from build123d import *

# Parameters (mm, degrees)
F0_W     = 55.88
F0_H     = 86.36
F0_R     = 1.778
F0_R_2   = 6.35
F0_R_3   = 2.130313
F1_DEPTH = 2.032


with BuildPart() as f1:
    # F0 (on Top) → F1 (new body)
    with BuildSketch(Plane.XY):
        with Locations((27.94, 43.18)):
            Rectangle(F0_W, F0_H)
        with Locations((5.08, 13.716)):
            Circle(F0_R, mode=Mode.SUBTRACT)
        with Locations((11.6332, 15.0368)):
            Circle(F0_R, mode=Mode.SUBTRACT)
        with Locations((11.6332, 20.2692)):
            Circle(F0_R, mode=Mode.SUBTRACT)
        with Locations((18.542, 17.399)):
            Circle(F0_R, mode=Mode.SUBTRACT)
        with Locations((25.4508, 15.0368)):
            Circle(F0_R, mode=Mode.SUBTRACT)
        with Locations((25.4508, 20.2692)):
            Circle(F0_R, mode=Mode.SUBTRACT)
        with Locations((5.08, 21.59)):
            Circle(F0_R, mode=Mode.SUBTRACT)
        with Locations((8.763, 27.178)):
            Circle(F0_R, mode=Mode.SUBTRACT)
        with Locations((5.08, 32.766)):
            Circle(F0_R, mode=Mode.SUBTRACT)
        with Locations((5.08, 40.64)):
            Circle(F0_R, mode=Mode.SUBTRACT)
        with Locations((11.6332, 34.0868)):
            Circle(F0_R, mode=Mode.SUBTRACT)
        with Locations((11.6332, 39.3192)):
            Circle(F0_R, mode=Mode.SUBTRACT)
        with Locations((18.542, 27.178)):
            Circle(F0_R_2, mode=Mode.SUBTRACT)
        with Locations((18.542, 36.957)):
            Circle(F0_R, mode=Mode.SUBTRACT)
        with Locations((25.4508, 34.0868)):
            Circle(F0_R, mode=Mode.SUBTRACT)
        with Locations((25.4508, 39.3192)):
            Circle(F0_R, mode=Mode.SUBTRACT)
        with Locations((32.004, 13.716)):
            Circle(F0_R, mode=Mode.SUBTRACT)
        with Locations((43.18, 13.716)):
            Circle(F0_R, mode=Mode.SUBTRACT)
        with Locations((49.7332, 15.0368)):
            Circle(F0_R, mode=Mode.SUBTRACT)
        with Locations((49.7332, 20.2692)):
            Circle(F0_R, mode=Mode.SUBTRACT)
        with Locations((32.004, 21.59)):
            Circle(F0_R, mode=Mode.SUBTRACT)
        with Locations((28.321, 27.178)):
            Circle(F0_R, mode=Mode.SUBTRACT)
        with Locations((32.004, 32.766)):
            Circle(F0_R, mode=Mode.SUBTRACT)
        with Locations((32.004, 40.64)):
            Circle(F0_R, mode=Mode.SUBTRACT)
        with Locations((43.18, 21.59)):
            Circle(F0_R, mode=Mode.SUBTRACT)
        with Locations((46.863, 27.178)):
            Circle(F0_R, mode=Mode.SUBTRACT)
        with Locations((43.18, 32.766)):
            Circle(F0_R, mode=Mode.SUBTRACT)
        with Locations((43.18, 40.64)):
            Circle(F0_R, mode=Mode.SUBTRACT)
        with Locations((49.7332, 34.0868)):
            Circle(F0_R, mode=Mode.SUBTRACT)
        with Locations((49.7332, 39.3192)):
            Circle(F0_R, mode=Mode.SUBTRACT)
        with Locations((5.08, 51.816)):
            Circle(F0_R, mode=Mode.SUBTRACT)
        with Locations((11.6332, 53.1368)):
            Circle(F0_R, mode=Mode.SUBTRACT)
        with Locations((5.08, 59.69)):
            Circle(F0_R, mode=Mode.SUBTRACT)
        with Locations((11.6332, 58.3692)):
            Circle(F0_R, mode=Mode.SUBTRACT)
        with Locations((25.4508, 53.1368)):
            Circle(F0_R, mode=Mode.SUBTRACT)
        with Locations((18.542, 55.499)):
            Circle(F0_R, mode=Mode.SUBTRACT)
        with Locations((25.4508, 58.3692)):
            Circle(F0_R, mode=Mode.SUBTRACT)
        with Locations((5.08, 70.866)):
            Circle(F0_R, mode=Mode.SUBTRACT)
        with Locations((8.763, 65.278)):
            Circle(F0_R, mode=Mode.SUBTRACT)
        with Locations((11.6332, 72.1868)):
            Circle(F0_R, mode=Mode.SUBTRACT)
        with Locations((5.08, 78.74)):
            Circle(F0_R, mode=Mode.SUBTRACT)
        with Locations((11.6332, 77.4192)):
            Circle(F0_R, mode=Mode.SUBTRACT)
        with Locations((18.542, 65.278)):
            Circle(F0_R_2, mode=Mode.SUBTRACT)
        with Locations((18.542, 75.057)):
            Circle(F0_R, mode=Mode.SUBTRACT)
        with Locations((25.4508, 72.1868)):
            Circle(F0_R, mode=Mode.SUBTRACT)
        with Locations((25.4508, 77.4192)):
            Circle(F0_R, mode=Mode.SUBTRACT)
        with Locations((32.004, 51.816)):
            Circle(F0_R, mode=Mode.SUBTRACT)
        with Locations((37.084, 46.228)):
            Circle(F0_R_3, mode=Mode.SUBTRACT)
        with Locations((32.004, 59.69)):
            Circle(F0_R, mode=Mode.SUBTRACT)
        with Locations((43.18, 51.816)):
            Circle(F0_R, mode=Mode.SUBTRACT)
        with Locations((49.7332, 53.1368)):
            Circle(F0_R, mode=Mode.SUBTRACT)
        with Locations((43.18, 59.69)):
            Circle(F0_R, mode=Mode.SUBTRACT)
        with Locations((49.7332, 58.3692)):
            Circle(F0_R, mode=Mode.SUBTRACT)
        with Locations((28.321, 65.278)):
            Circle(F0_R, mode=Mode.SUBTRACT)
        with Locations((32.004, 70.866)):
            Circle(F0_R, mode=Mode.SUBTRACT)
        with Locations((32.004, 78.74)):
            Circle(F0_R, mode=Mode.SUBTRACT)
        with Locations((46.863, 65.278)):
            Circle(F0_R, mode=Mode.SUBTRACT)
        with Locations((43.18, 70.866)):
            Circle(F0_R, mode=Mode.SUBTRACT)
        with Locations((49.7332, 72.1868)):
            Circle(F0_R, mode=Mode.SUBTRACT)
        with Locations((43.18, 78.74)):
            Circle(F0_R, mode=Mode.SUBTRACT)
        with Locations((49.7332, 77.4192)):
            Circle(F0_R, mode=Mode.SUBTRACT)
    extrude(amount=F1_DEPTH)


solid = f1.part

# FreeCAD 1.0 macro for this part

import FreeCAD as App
import Part
import Sketcher
Q = App.Units.Quantity

doc = App.newDocument("Part")
body = doc.addObject("PartDesign::Body", "Body")

# Sketch on XY plane
sketch1 = doc.addObject("Sketcher::SketchObject", "Sketch")
body.addObject(sketch1)
sketch1.AttachmentSupport = (doc.XY_Plane, [""])
sketch1.MapMode = "FlatFace"
sketch1.addGeometry([
    Part.LineSegment(App.Vector(0, 86.4, 0), App.Vector(0, 0, 0)),  # 0
    Part.LineSegment(App.Vector(0, 0, 0), App.Vector(55.9, 0, 0)),  # 1
    Part.LineSegment(App.Vector(55.9, 0, 0), App.Vector(55.9, 86.4, 0)),  # 2
    Part.LineSegment(App.Vector(55.9, 86.4, 0), App.Vector(0, 86.4, 0)),  # 3
    Part.Circle(App.Vector(5.1, 13.7, 0), App.Vector(0, 0, 1), 1.8),  # 4
    Part.Circle(App.Vector(11.6, 15, 0), App.Vector(0, 0, 1), 1.8),  # 5
    Part.Circle(App.Vector(11.6, 20.3, 0), App.Vector(0, 0, 1), 1.8),  # 6
    Part.Circle(App.Vector(5.1, 21.6, 0), App.Vector(0, 0, 1), 1.8),  # 7
    Part.Circle(App.Vector(8.8, 27.2, 0), App.Vector(0, 0, 1), 1.8),  # 8
    Part.Circle(App.Vector(18.5, 17.4, 0), App.Vector(0, 0, 1), 1.8),  # 9
    Part.Circle(App.Vector(25.5, 15, 0), App.Vector(0, 0, 1), 1.8),  # 10
    Part.Circle(App.Vector(25.5, 20.3, 0), App.Vector(0, 0, 1), 1.8),  # 11
    Part.Circle(App.Vector(18.5, 27.2, 0), App.Vector(0, 0, 1), 6.3),  # 12
    Part.Circle(App.Vector(5.1, 32.8, 0), App.Vector(0, 0, 1), 1.8),  # 13
    Part.Circle(App.Vector(11.6, 34.1, 0), App.Vector(0, 0, 1), 1.8),  # 14
    Part.Circle(App.Vector(5.1, 40.6, 0), App.Vector(0, 0, 1), 1.8),  # 15
    Part.Circle(App.Vector(11.6, 39.3, 0), App.Vector(0, 0, 1), 1.8),  # 16
    Part.Circle(App.Vector(18.5, 37, 0), App.Vector(0, 0, 1), 1.8),  # 17
    Part.Circle(App.Vector(25.5, 34.1, 0), App.Vector(0, 0, 1), 1.8),  # 18
    Part.Circle(App.Vector(25.5, 39.3, 0), App.Vector(0, 0, 1), 1.8),  # 19
    Part.Circle(App.Vector(32, 13.7, 0), App.Vector(0, 0, 1), 1.8),  # 20
    Part.Circle(App.Vector(32, 21.6, 0), App.Vector(0, 0, 1), 1.8),  # 21
    Part.Circle(App.Vector(28.3, 27.2, 0), App.Vector(0, 0, 1), 1.8),  # 22
    Part.Circle(App.Vector(43.2, 13.7, 0), App.Vector(0, 0, 1), 1.8),  # 23
    Part.Circle(App.Vector(49.7, 15, 0), App.Vector(0, 0, 1), 1.8),  # 24
    Part.Circle(App.Vector(49.7, 20.3, 0), App.Vector(0, 0, 1), 1.8),  # 25
    Part.Circle(App.Vector(43.2, 21.6, 0), App.Vector(0, 0, 1), 1.8),  # 26
    Part.Circle(App.Vector(46.9, 27.2, 0), App.Vector(0, 0, 1), 1.8),  # 27
    Part.Circle(App.Vector(32, 32.8, 0), App.Vector(0, 0, 1), 1.8),  # 28
    Part.Circle(App.Vector(32, 40.6, 0), App.Vector(0, 0, 1), 1.8),  # 29
    Part.Circle(App.Vector(43.2, 32.8, 0), App.Vector(0, 0, 1), 1.8),  # 30
    Part.Circle(App.Vector(49.7, 34.1, 0), App.Vector(0, 0, 1), 1.8),  # 31
    Part.Circle(App.Vector(43.2, 40.6, 0), App.Vector(0, 0, 1), 1.8),  # 32
    Part.Circle(App.Vector(49.7, 39.3, 0), App.Vector(0, 0, 1), 1.8),  # 33
    Part.Circle(App.Vector(5.1, 51.8, 0), App.Vector(0, 0, 1), 1.8),  # 34
    Part.Circle(App.Vector(11.6, 53.1, 0), App.Vector(0, 0, 1), 1.8),  # 35
    Part.Circle(App.Vector(5.1, 59.7, 0), App.Vector(0, 0, 1), 1.8),  # 36
    Part.Circle(App.Vector(11.6, 58.4, 0), App.Vector(0, 0, 1), 1.8),  # 37
    Part.Circle(App.Vector(25.5, 53.1, 0), App.Vector(0, 0, 1), 1.8),  # 38
    Part.Circle(App.Vector(18.5, 55.5, 0), App.Vector(0, 0, 1), 1.8),  # 39
    Part.Circle(App.Vector(25.5, 58.4, 0), App.Vector(0, 0, 1), 1.8),  # 40
    Part.Circle(App.Vector(8.8, 65.3, 0), App.Vector(0, 0, 1), 1.8),  # 41
    Part.Circle(App.Vector(5.1, 70.9, 0), App.Vector(0, 0, 1), 1.8),  # 42
    Part.Circle(App.Vector(5.1, 78.7, 0), App.Vector(0, 0, 1), 1.8),  # 43
    Part.Circle(App.Vector(11.6, 72.2, 0), App.Vector(0, 0, 1), 1.8),  # 44
    Part.Circle(App.Vector(11.6, 77.4, 0), App.Vector(0, 0, 1), 1.8),  # 45
    Part.Circle(App.Vector(18.5, 65.3, 0), App.Vector(0, 0, 1), 6.3),  # 46
    Part.Circle(App.Vector(18.5, 75.1, 0), App.Vector(0, 0, 1), 1.8),  # 47
    Part.Circle(App.Vector(25.5, 72.2, 0), App.Vector(0, 0, 1), 1.8),  # 48
    Part.Circle(App.Vector(25.5, 77.4, 0), App.Vector(0, 0, 1), 1.8),  # 49
    Part.Circle(App.Vector(32, 51.8, 0), App.Vector(0, 0, 1), 1.8),  # 50
    Part.Circle(App.Vector(37.1, 46.2, 0), App.Vector(0, 0, 1), 2.1),  # 51
    Part.Circle(App.Vector(32, 59.7, 0), App.Vector(0, 0, 1), 1.8),  # 52
    Part.Circle(App.Vector(43.2, 51.8, 0), App.Vector(0, 0, 1), 1.8),  # 53
    Part.Circle(App.Vector(49.7, 53.1, 0), App.Vector(0, 0, 1), 1.8),  # 54
    Part.Circle(App.Vector(43.2, 59.7, 0), App.Vector(0, 0, 1), 1.8),  # 55
    Part.Circle(App.Vector(49.7, 58.4, 0), App.Vector(0, 0, 1), 1.8),  # 56
    Part.Circle(App.Vector(28.3, 65.3, 0), App.Vector(0, 0, 1), 1.8),  # 57
    Part.Circle(App.Vector(32, 70.9, 0), App.Vector(0, 0, 1), 1.8),  # 58
    Part.Circle(App.Vector(32, 78.7, 0), App.Vector(0, 0, 1), 1.8),  # 59
    Part.Circle(App.Vector(43.2, 70.9, 0), App.Vector(0, 0, 1), 1.8),  # 60
    Part.Circle(App.Vector(46.9, 65.3, 0), App.Vector(0, 0, 1), 1.8),  # 61
    Part.Circle(App.Vector(43.2, 78.7, 0), App.Vector(0, 0, 1), 1.8),  # 62
    Part.Circle(App.Vector(49.7, 72.2, 0), App.Vector(0, 0, 1), 1.8),  # 63
    Part.Circle(App.Vector(49.7, 77.4, 0), App.Vector(0, 0, 1), 1.8),  # 64
], False)
sketch1.addConstraint([
    Sketcher.Constraint("Coincident", 0, 2, 1, 1),
    Sketcher.Constraint("Coincident", 1, 2, 2, 1),
    Sketcher.Constraint("Coincident", 2, 2, 3, 1),
    Sketcher.Constraint("Coincident", 3, 2, 0, 1),
    Sketcher.Constraint("Vertical", 0),
    Sketcher.Constraint("Horizontal", 1),
    Sketcher.Constraint("Vertical", 2),
    Sketcher.Constraint("Horizontal", 3),
    Sketcher.Constraint("Coincident", 0, 2, -1, 1),
    Sketcher.Constraint("Equal", 4, 5),
    Sketcher.Constraint("Equal", 5, 6),
    Sketcher.Constraint("Equal", 6, 7),
    Sketcher.Constraint("Equal", 7, 8),
    Sketcher.Constraint("Equal", 8, 9),
    Sketcher.Constraint("Equal", 9, 10),
    Sketcher.Constraint("Equal", 10, 11),
    Sketcher.Constraint("Equal", 11, 13),
    Sketcher.Constraint("Equal", 13, 14),
    Sketcher.Constraint("Equal", 14, 15),
    Sketcher.Constraint("Equal", 15, 16),
    Sketcher.Constraint("Equal", 16, 17),
    Sketcher.Constraint("Equal", 17, 18),
    Sketcher.Constraint("Equal", 18, 19),
    Sketcher.Constraint("Equal", 19, 20),
    Sketcher.Constraint("Equal", 20, 21),
    Sketcher.Constraint("Equal", 21, 22),
    Sketcher.Constraint("Equal", 22, 23),
    Sketcher.Constraint("Equal", 23, 24),
    Sketcher.Constraint("Equal", 24, 25),
    Sketcher.Constraint("Equal", 25, 26),
    Sketcher.Constraint("Equal", 26, 27),
    Sketcher.Constraint("Equal", 27, 28),
    Sketcher.Constraint("Equal", 28, 29),
    Sketcher.Constraint("Equal", 29, 30),
    Sketcher.Constraint("Equal", 30, 31),
    Sketcher.Constraint("Equal", 31, 32),
    Sketcher.Constraint("Equal", 32, 33),
    Sketcher.Constraint("Equal", 33, 34),
    Sketcher.Constraint("Equal", 34, 35),
    Sketcher.Constraint("Equal", 35, 36),
    Sketcher.Constraint("Equal", 36, 37),
    Sketcher.Constraint("Equal", 37, 38),
    Sketcher.Constraint("Equal", 38, 39),
    Sketcher.Constraint("Equal", 39, 40),
    Sketcher.Constraint("Equal", 40, 41),
    Sketcher.Constraint("Equal", 41, 42),
    Sketcher.Constraint("Equal", 42, 43),
    Sketcher.Constraint("Equal", 43, 44),
    Sketcher.Constraint("Equal", 44, 45),
    Sketcher.Constraint("Equal", 12, 46),
    Sketcher.Constraint("Equal", 45, 47),
    Sketcher.Constraint("Equal", 47, 48),
    Sketcher.Constraint("Equal", 48, 49),
    Sketcher.Constraint("Equal", 49, 50),
    Sketcher.Constraint("Equal", 50, 52),
    Sketcher.Constraint("Equal", 52, 53),
    Sketcher.Constraint("Equal", 53, 54),
    Sketcher.Constraint("Equal", 54, 55),
    Sketcher.Constraint("Equal", 55, 56),
    Sketcher.Constraint("Equal", 56, 57),
    Sketcher.Constraint("Equal", 57, 58),
    Sketcher.Constraint("Equal", 58, 59),
    Sketcher.Constraint("Equal", 59, 60),
    Sketcher.Constraint("Equal", 60, 61),
    Sketcher.Constraint("Equal", 61, 62),
    Sketcher.Constraint("Equal", 62, 63),
    Sketcher.Constraint("Equal", 63, 64),
    Sketcher.Constraint("Horizontal", 5, 3, 10, 3),
    Sketcher.Constraint("Horizontal", 6, 3, 11, 3),
    Sketcher.Constraint("Horizontal", 8, 3, 12, 3),
    Sketcher.Constraint("Horizontal", 14, 3, 18, 3),
    Sketcher.Constraint("Horizontal", 16, 3, 19, 3),
    Sketcher.Constraint("Horizontal", 4, 3, 20, 3),
    Sketcher.Constraint("Horizontal", 7, 3, 21, 3),
    Sketcher.Constraint("Horizontal", 12, 3, 22, 3),
    Sketcher.Constraint("Horizontal", 20, 3, 23, 3),
    Sketcher.Constraint("Horizontal", 10, 3, 24, 3),
    Sketcher.Constraint("Horizontal", 11, 3, 25, 3),
    Sketcher.Constraint("Horizontal", 21, 3, 26, 3),
    Sketcher.Constraint("Horizontal", 22, 3, 27, 3),
    Sketcher.Constraint("Horizontal", 13, 3, 28, 3),
    Sketcher.Constraint("Horizontal", 15, 3, 29, 3),
    Sketcher.Constraint("Horizontal", 28, 3, 30, 3),
    Sketcher.Constraint("Horizontal", 18, 3, 31, 3),
    Sketcher.Constraint("Horizontal", 29, 3, 32, 3),
    Sketcher.Constraint("Horizontal", 19, 3, 33, 3),
    Sketcher.Constraint("Horizontal", 35, 3, 38, 3),
    Sketcher.Constraint("Horizontal", 37, 3, 40, 3),
    Sketcher.Constraint("Horizontal", 41, 3, 46, 3),
    Sketcher.Constraint("Horizontal", 44, 3, 48, 3),
    Sketcher.Constraint("Horizontal", 45, 3, 49, 3),
    Sketcher.Constraint("Horizontal", 34, 3, 50, 3),
    Sketcher.Constraint("Horizontal", 36, 3, 52, 3),
    Sketcher.Constraint("Horizontal", 50, 3, 53, 3),
    Sketcher.Constraint("Horizontal", 38, 3, 54, 3),
    Sketcher.Constraint("Horizontal", 52, 3, 55, 3),
    Sketcher.Constraint("Horizontal", 40, 3, 56, 3),
    Sketcher.Constraint("Horizontal", 46, 3, 57, 3),
    Sketcher.Constraint("Horizontal", 42, 3, 58, 3),
    Sketcher.Constraint("Horizontal", 43, 3, 59, 3),
    Sketcher.Constraint("Horizontal", 58, 3, 60, 3),
    Sketcher.Constraint("Horizontal", 57, 3, 61, 3),
    Sketcher.Constraint("Horizontal", 59, 3, 62, 3),
    Sketcher.Constraint("Horizontal", 48, 3, 63, 3),
    Sketcher.Constraint("Horizontal", 49, 3, 64, 3),
    Sketcher.Constraint("Vertical", 5, 3, 6, 3),
    Sketcher.Constraint("Vertical", 4, 3, 7, 3),
    Sketcher.Constraint("Vertical", 10, 3, 11, 3),
    Sketcher.Constraint("Vertical", 9, 3, 12, 3),
    Sketcher.Constraint("Vertical", 7, 3, 13, 3),
    Sketcher.Constraint("Vertical", 6, 3, 14, 3),
    Sketcher.Constraint("Vertical", 13, 3, 15, 3),
    Sketcher.Constraint("Vertical", 14, 3, 16, 3),
    Sketcher.Constraint("Vertical", 12, 3, 17, 3),
    Sketcher.Constraint("Vertical", 11, 3, 18, 3),
    Sketcher.Constraint("Vertical", 18, 3, 19, 3),
    Sketcher.Constraint("Vertical", 20, 3, 21, 3),
    Sketcher.Constraint("Vertical", 24, 3, 25, 3),
    Sketcher.Constraint("Vertical", 23, 3, 26, 3),
    Sketcher.Constraint("Vertical", 21, 3, 28, 3),
    Sketcher.Constraint("Vertical", 28, 3, 29, 3),
    Sketcher.Constraint("Vertical", 26, 3, 30, 3),
    Sketcher.Constraint("Vertical", 25, 3, 31, 3),
    Sketcher.Constraint("Vertical", 30, 3, 32, 3),
    Sketcher.Constraint("Vertical", 31, 3, 33, 3),
    Sketcher.Constraint("Vertical", 15, 3, 34, 3),
    Sketcher.Constraint("Vertical", 16, 3, 35, 3),
    Sketcher.Constraint("Vertical", 34, 3, 36, 3),
    Sketcher.Constraint("Vertical", 35, 3, 37, 3),
    Sketcher.Constraint("Vertical", 19, 3, 38, 3),
    Sketcher.Constraint("Vertical", 17, 3, 39, 3),
    Sketcher.Constraint("Vertical", 38, 3, 40, 3),
    Sketcher.Constraint("Vertical", 8, 3, 41, 3),
    Sketcher.Constraint("Vertical", 36, 3, 42, 3),
    Sketcher.Constraint("Vertical", 42, 3, 43, 3),
    Sketcher.Constraint("Vertical", 37, 3, 44, 3),
    Sketcher.Constraint("Vertical", 44, 3, 45, 3),
    Sketcher.Constraint("Vertical", 39, 3, 46, 3),
    Sketcher.Constraint("Vertical", 46, 3, 47, 3),
    Sketcher.Constraint("Vertical", 40, 3, 48, 3),
    Sketcher.Constraint("Vertical", 48, 3, 49, 3),
    Sketcher.Constraint("Vertical", 29, 3, 50, 3),
    Sketcher.Constraint("Vertical", 50, 3, 52, 3),
    Sketcher.Constraint("Vertical", 32, 3, 53, 3),
    Sketcher.Constraint("Vertical", 33, 3, 54, 3),
    Sketcher.Constraint("Vertical", 53, 3, 55, 3),
    Sketcher.Constraint("Vertical", 54, 3, 56, 3),
    Sketcher.Constraint("Vertical", 22, 3, 57, 3),
    Sketcher.Constraint("Vertical", 52, 3, 58, 3),
    Sketcher.Constraint("Vertical", 58, 3, 59, 3),
    Sketcher.Constraint("Vertical", 55, 3, 60, 3),
    Sketcher.Constraint("Vertical", 27, 3, 61, 3),
    Sketcher.Constraint("Vertical", 60, 3, 62, 3),
    Sketcher.Constraint("Vertical", 56, 3, 63, 3),
    Sketcher.Constraint("Vertical", 63, 3, 64, 3),
    Sketcher.Constraint("Diameter", 12, Q("0.5 in")),
    Sketcher.Constraint("Diameter", 4, Q("0.14 in")),
    Sketcher.Constraint("DistanceX", 1, 1, 1, 2, Q("2.2 in")),
    Sketcher.Constraint("DistanceY", 0, 2, 0, 1, Q("3.4 in")),
    Sketcher.Constraint("DistanceX", -1, 1, 4, 3, Q("0.2 in")),
    Sketcher.Constraint("DistanceY", -1, 1, 15, 3, Q("1.6 in")),
    Sketcher.Constraint("DistanceX", -1, 1, 23, 3, Q("1.7 in")),
    Sketcher.Constraint("DistanceY", -1, 1, 43, 3, Q("3.1 in")),
    Sketcher.Constraint("DistanceY", -1, 1, 4, 3, Q("0.54 in")),
    Sketcher.Constraint("DistanceY", -1, 1, 7, 3, Q("0.85 in")),
    Sketcher.Constraint("DistanceY", -1, 1, 8, 3, Q("1.07 in")),
    Sketcher.Constraint("DistanceX", -1, 1, 9, 3, Q("0.73 in")),
    Sketcher.Constraint("DistanceY", -1, 1, 13, 3, Q("1.29 in")),
    Sketcher.Constraint("DistanceX", -1, 1, 20, 3, Q("1.26 in")),
    Sketcher.Constraint("DistanceY", -1, 1, 34, 3, Q("2.04 in")),
    Sketcher.Constraint("DistanceY", -1, 1, 36, 3, Q("2.35 in")),
    Sketcher.Constraint("DistanceY", -1, 1, 41, 3, Q("2.57 in")),
    Sketcher.Constraint("DistanceY", -1, 1, 42, 3, Q("2.79 in")),
    Sketcher.Constraint("DistanceX", -1, 1, 51, 3, Q("1.46 in")),
    Sketcher.Constraint("DistanceY", -1, 1, 51, 3, Q("1.82 in")),
    Sketcher.Constraint("DistanceX", -1, 1, 5, 3, Q("0.458 in")),
    Sketcher.Constraint("DistanceY", -1, 1, 5, 3, Q("0.592 in")),
    Sketcher.Constraint("DistanceY", -1, 1, 6, 3, Q("0.798 in")),
    Sketcher.Constraint("DistanceX", -1, 1, 8, 3, Q("0.345 in")),
    Sketcher.Constraint("DistanceY", -1, 1, 9, 3, Q("0.685 in")),
    Sketcher.Constraint("DistanceX", -1, 1, 10, 3, Q("1.002 in")),
    Sketcher.Constraint("DistanceY", -1, 1, 14, 3, Q("1.342 in")),
    Sketcher.Constraint("DistanceY", -1, 1, 16, 3, Q("1.548 in")),
    Sketcher.Constraint("DistanceY", -1, 1, 17, 3, Q("1.455 in")),
    Sketcher.Constraint("DistanceX", -1, 1, 22, 3, Q("1.115 in")),
    Sketcher.Constraint("DistanceX", -1, 1, 24, 3, Q("1.958 in")),
    Sketcher.Constraint("DistanceX", -1, 1, 27, 3, Q("1.845 in")),
    Sketcher.Constraint("DistanceY", -1, 1, 35, 3, Q("2.092 in")),
    Sketcher.Constraint("DistanceY", -1, 1, 37, 3, Q("2.298 in")),
    Sketcher.Constraint("DistanceY", -1, 1, 39, 3, Q("2.185 in")),
    Sketcher.Constraint("DistanceY", -1, 1, 44, 3, Q("2.842 in")),
    Sketcher.Constraint("DistanceY", -1, 1, 45, 3, Q("3.048 in")),
    Sketcher.Constraint("DistanceY", -1, 1, 47, 3, Q("2.955 in")),
    Sketcher.Constraint("Diameter", 51, 4.260626),
])
pad1 = doc.addObject("PartDesign::Pad", "Pad")
body.addObject(pad1)
pad1.Profile = sketch1
pad1.Length = Q("0.08 in")

doc.recompute()
